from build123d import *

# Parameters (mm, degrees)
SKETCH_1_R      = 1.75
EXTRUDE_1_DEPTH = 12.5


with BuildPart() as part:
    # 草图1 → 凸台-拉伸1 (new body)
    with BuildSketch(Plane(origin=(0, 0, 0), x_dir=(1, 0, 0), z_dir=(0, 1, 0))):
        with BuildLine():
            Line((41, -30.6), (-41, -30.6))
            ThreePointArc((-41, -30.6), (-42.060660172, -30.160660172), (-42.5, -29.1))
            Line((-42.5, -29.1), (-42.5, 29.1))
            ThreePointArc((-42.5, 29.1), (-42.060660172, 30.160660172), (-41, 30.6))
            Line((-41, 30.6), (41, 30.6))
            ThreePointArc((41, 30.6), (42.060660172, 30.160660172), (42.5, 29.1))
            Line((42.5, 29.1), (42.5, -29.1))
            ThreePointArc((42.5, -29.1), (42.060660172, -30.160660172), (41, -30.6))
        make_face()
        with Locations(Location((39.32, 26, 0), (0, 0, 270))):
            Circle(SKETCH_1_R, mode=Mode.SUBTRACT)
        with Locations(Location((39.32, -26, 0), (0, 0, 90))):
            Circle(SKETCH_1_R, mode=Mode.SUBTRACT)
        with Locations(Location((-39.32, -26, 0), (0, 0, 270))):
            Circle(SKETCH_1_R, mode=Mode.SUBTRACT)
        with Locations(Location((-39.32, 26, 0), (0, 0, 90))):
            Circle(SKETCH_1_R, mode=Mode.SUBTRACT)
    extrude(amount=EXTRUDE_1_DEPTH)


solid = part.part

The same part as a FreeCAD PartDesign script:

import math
import FreeCAD as App
import Part
import Sketcher
from FreeCAD import Vector

doc = App.newDocument("Part")
body = doc.addObject("PartDesign::Body", "Body")

sketch1 = doc.addObject("Sketcher::SketchObject", "Sketch")
body.addObject(sketch1)
sketch1.AttachmentSupport = (doc.XZ_Plane, [""])
sketch1.MapMode = "FlatFace"
sketch1.addGeometry(Part.LineSegment(Vector(-41, 30.6, 0), Vector(41, 30.6, 0)), False)
sketch1.addGeometry(Part.ArcOfCircle(Part.Circle(Vector(41, 29.1, 0), Vector(0, 0, 1), 1.5), math.radians(0), math.radians(90)), False)
sketch1.addGeometry(Part.LineSegment(Vector(42.5, 29.1, 0), Vector(42.5, -29.1, 0)), False)
sketch1.addGeometry(Part.ArcOfCircle(Part.Circle(Vector(41, -29.1, 0), Vector(0, 0, 1), 1.5), math.radians(-90), math.radians(0)), False)
sketch1.addGeometry(Part.LineSegment(Vector(41, -30.6, 0), Vector(-41, -30.6, 0)), False)
sketch1.addGeometry(Part.ArcOfCircle(Part.Circle(Vector(-41, -29.1, 0), Vector(0, 0, 1), 1.5), math.radians(180), math.radians(270)), False)
sketch1.addGeometry(Part.LineSegment(Vector(-42.5, -29.1, 0), Vector(-42.5, 29.1, 0)), False)
sketch1.addGeometry(Part.ArcOfCircle(Part.Circle(Vector(-41, 29.1, 0), Vector(0, 0, 1), 1.5), math.radians(90), math.radians(180)), False)
sketch1.addGeometry(Part.Circle(Vector(39.3, 26, 0), Vector(0, 0, 1), 1.8), False)
sketch1.addGeometry(Part.Circle(Vector(-39.3, 26, 0), Vector(0, 0, 1), 1.8), False)
sketch1.addGeometry(Part.Circle(Vector(39.3, -26, 0), Vector(0, 0, 1), 1.8), False)
sketch1.addGeometry(Part.Circle(Vector(-39.3, -26, 0), Vector(0, 0, 1), 1.8), False)
sketch1.addConstraint(Sketcher.Constraint("Tangent", 0, 2, 1, 2))
sketch1.addConstraint(Sketcher.Constraint("Tangent", 1, 1, 2, 1))
sketch1.addConstraint(Sketcher.Constraint("Tangent", 2, 2, 3, 2))
sketch1.addConstraint(Sketcher.Constraint("Tangent", 3, 1, 4, 1))
sketch1.addConstraint(Sketcher.Constraint("Tangent", 4, 2, 5, 2))
sketch1.addConstraint(Sketcher.Constraint("Tangent", 5, 1, 6, 1))
sketch1.addConstraint(Sketcher.Constraint("Tangent", 6, 2, 7, 2))
sketch1.addConstraint(Sketcher.Constraint("Tangent", 7, 1, 0, 1))
sketch1.addConstraint(Sketcher.Constraint("Horizontal", 0))
sketch1.addConstraint(Sketcher.Constraint("Vertical", 2))
sketch1.addConstraint(Sketcher.Constraint("Horizontal", 4))
sketch1.addConstraint(Sketcher.Constraint("Vertical", 6))
sketch1.addConstraint(Sketcher.Constraint("Equal", 1, 3))
sketch1.addConstraint(Sketcher.Constraint("Equal", 3, 5))
sketch1.addConstraint(Sketcher.Constraint("Equal", 5, 7))
sketch1.addConstraint(Sketcher.Constraint("Equal", 8, 9))
sketch1.addConstraint(Sketcher.Constraint("Equal", 9, 10))
sketch1.addConstraint(Sketcher.Constraint("Equal", 10, 11))
sketch1.addConstraint(Sketcher.Constraint("Symmetric", 1, 3, 5, 3, -1, 1))
sketch1.addConstraint(Sketcher.Constraint("Symmetric", 9, 3, 10, 3, -1, 1))
sketch1.addConstraint(Sketcher.Constraint("Symmetric", 8, 3, 11, 3, -1, 1))
sketch1.addConstraint(Sketcher.Constraint("Symmetric", 8, 3, 9, 3, -2))
sketch1.addConstraint(Sketcher.Constraint("Diameter", 8, 3.5))
sketch1.addConstraint(Sketcher.Constraint("Radius", 1, 1.5))
sketch1.addConstraint(Sketcher.Constraint("DistanceX", 0, 1, 0, 2, 82.0))
sketch1.addConstraint(Sketcher.Constraint("DistanceY", 2, 2, 2, 1, 58.2))
sketch1.addConstraint(Sketcher.Constraint("DistanceY", -1, 1, 8, 3, 26.0))
sketch1.addConstraint(Sketcher.Constraint("DistanceX", -1, 1, 8, 3, 39.32))
pad1 = doc.addObject("PartDesign::Pad", "Pad")
body.addObject(pad1)
pad1.Profile = sketch1
pad1.Length = 12.5
pad1.Reversed = True

doc.recompute()
